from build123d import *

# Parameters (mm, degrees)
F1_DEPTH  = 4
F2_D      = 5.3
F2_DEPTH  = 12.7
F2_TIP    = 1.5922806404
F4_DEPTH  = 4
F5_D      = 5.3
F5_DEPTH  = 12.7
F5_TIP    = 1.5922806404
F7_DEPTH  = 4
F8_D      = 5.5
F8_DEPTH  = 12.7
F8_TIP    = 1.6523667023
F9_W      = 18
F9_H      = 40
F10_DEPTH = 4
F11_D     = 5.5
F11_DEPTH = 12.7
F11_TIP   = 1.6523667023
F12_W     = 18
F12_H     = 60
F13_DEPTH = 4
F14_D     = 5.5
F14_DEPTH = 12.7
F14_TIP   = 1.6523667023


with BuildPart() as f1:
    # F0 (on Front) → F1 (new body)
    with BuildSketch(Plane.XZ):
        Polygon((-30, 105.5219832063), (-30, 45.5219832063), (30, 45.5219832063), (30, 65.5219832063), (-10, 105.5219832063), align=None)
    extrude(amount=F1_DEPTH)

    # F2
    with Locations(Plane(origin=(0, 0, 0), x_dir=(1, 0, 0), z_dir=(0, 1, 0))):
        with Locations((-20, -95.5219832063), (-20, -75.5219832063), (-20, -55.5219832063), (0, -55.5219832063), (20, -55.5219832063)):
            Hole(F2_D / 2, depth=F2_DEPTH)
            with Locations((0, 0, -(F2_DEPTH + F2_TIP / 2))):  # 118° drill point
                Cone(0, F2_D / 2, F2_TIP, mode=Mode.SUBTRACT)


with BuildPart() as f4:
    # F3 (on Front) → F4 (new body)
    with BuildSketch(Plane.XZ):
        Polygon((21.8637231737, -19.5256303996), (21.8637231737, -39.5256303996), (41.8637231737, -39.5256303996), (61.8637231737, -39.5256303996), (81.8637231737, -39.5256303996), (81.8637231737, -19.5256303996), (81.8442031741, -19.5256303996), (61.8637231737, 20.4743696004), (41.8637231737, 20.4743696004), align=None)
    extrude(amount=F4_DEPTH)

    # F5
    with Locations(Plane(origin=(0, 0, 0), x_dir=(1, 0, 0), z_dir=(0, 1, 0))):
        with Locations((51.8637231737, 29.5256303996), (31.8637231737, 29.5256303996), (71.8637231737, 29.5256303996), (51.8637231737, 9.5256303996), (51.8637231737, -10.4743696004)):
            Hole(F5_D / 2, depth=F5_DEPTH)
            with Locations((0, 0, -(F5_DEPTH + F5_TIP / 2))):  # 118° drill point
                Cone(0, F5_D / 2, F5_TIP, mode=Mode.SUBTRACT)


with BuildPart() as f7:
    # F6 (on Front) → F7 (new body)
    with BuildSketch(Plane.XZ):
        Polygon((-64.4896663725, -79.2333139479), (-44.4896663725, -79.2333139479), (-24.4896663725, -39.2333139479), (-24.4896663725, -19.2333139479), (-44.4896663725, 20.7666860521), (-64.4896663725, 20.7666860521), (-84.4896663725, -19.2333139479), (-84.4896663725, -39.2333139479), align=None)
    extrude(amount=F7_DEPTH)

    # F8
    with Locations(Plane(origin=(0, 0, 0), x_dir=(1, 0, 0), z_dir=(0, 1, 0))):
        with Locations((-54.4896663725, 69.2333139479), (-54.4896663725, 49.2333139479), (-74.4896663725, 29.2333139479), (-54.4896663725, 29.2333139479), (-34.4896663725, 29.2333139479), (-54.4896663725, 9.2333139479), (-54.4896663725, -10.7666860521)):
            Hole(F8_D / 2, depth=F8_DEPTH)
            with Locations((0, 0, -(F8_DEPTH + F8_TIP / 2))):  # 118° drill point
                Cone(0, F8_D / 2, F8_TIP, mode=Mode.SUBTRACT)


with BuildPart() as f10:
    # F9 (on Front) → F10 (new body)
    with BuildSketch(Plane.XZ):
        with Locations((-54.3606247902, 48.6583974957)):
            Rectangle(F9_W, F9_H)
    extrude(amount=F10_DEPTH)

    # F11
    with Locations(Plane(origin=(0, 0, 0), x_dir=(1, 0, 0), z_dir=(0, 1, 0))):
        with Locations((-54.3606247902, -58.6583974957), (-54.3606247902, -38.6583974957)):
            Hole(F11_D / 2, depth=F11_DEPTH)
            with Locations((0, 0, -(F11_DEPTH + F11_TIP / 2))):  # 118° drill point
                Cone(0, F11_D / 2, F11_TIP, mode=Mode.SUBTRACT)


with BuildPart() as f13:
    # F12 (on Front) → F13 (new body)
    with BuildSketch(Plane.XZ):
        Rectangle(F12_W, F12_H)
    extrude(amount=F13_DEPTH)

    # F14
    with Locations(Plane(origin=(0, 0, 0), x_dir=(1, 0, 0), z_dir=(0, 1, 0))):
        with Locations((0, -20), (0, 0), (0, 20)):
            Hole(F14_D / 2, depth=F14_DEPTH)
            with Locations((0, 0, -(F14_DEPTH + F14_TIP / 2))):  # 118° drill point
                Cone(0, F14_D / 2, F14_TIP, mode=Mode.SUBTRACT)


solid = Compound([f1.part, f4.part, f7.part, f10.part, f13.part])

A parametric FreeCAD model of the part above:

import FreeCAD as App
import Part
import Sketcher

doc = App.newDocument("Part")
body = doc.addObject("PartDesign::Body", "Body")

# Sketch on XZ plane
sketch1 = body.newObject("Sketcher::SketchObject", "Sketch")
sketch1.AttachmentSupport = (doc.getObject("XZ_Plane"), [""])
sketch1.MapMode = "FlatFace"
sketch1.addGeometry(Part.LineSegment(App.Vector(-30, 106, 0), App.Vector(-30, 46, 0)), False)
sketch1.addGeometry(Part.LineSegment(App.Vector(-30, 46, 0), App.Vector(30, 46, 0)), False)
sketch1.addGeometry(Part.LineSegment(App.Vector(30, 46, 0), App.Vector(30, 66, 0)), False)
sketch1.addGeometry(Part.LineSegment(App.Vector(30, 66, 0), App.Vector(-10, 106, 0)), False)
sketch1.addGeometry(Part.LineSegment(App.Vector(-10, 106, 0), App.Vector(-30, 106, 0)), False)
sketch1.addConstraint(Sketcher.Constraint("Coincident", 0, 2, 1, 1))
sketch1.addConstraint(Sketcher.Constraint("Coincident", 1, 2, 2, 1))
sketch1.addConstraint(Sketcher.Constraint("Coincident", 2, 2, 3, 1))
sketch1.addConstraint(Sketcher.Constraint("Coincident", 3, 2, 4, 1))
sketch1.addConstraint(Sketcher.Constraint("Coincident", 4, 2, 0, 1))
sketch1.addConstraint(Sketcher.Constraint("Vertical", 0))
sketch1.addConstraint(Sketcher.Constraint("Horizontal", 1))
sketch1.addConstraint(Sketcher.Constraint("Vertical", 2))
sketch1.addConstraint(Sketcher.Constraint("Horizontal", 4))
sketch1.addConstraint(Sketcher.Constraint("Equal", 1, 0))
sketch1.addConstraint(Sketcher.Constraint("Equal", 4, 2))
sketch1.addConstraint(Sketcher.Constraint("DistanceX", 1, 1, 1, 2, 60.0))
sketch1.addConstraint(Sketcher.Constraint("DistanceX", 4, 2, 4, 1, 20.0))
sketch1.addConstraint(Sketcher.Constraint("DistanceX", 0, 2, -1, 1, 30.0))
sketch1.addConstraint(Sketcher.Constraint("DistanceY", -1, 1, 0, 2, 45.521983))
pad1 = body.newObject("PartDesign::Pad", "Pad")
pad1.Profile = sketch1
pad1.Length = 4

# Sketch on XZ plane
sketch2 = body.newObject("Sketcher::SketchObject", "Sketch001")
sketch2.AttachmentSupport = (doc.getObject("XZ_Plane"), [""])
sketch2.MapMode = "FlatFace"
sketch2.addGeometry(Part.Circle(App.Vector(-20, 95.5, 0), App.Vector(0, 0, 1), 2.6), False)
sketch2.addGeometry(Part.Circle(App.Vector(-20, 75.5, 0), App.Vector(0, 0, 1), 2.6), False)
sketch2.addGeometry(Part.Circle(App.Vector(-20, 55.5, 0), App.Vector(0, 0, 1), 2.6), False)
sketch2.addGeometry(Part.Circle(App.Vector(0, 55.5, 0), App.Vector(0, 0, 1), 2.6), False)
sketch2.addGeometry(Part.Circle(App.Vector(20, 55.5, 0), App.Vector(0, 0, 1), 2.6), False)
sketch2.addConstraint(Sketcher.Constraint("Equal", 0, 1))
sketch2.addConstraint(Sketcher.Constraint("Equal", 1, 2))
sketch2.addConstraint(Sketcher.Constraint("Equal", 2, 3))
sketch2.addConstraint(Sketcher.Constraint("Equal", 3, 4))
sketch2.addConstraint(Sketcher.Constraint("Symmetric", 2, 3, 4, 3, -2))
sketch2.addConstraint(Sketcher.Constraint("PointOnObject", 3, 3, -2))
sketch2.addConstraint(Sketcher.Constraint("Horizontal", 2, 3, 3, 3))
sketch2.addConstraint(Sketcher.Constraint("Vertical", 0, 3, 1, 3))
sketch2.addConstraint(Sketcher.Constraint("Vertical", 1, 3, 2, 3))
sketch2.addConstraint(Sketcher.Constraint("Diameter", 0, 5.3))
sketch2.addConstraint(Sketcher.Constraint("DistanceX", 0, 3, -1, 1, 20.0))
sketch2.addConstraint(Sketcher.Constraint("DistanceY", 1, 3, 0, 3, 20.0))
sketch2.addConstraint(Sketcher.Constraint("DistanceY", 2, 3, 1, 3, 20.0))
sketch2.addConstraint(Sketcher.Constraint("DistanceY", -1, 1, 0, 3, 95.521983))
doc.recompute()
hole = body.newObject("PartDesign::Hole", "Hole")
hole.Profile = sketch2
hole.ThreadType = "None"
hole.Diameter = 5.3
hole.DepthType = "Dimension"
hole.Depth = 12.7
hole.DrillPoint = "Angled"
hole.DrillPointAngle = 118
hole.Reversed = True
body2 = doc.addObject("PartDesign::Body", "Body001")

# Sketch on XZ plane
sketch3 = body2.newObject("Sketcher::SketchObject", "Sketch002")
sketch3.AttachmentSupport = (doc.getObject("XZ_Plane001"), [""])
sketch3.MapMode = "FlatFace"
sketch3.addGeometry(Part.LineSegment(App.Vector(21.864, -19.526, 0), App.Vector(21.864, -39.526, 0)), False)
sketch3.addGeometry(Part.LineSegment(App.Vector(21.864, -39.526, 0), App.Vector(81.864, -39.526, 0)), False)
sketch3.addGeometry(Part.LineSegment(App.Vector(81.864, -39.526, 0), App.Vector(81.864, -19.526, 0)), False)
sketch3.addGeometry(Part.LineSegment(App.Vector(81.864, -19.526, 0), App.Vector(81.844, -19.526, 0)), False)
sketch3.addGeometry(Part.LineSegment(App.Vector(81.844, -19.526, 0), App.Vector(61.864, 20.474, 0)), False)
sketch3.addGeometry(Part.LineSegment(App.Vector(61.864, 20.474, 0), App.Vector(41.864, 20.474, 0)), False)
sketch3.addGeometry(Part.LineSegment(App.Vector(41.864, 20.474, 0), App.Vector(21.864, -19.526, 0)), False)
sketch3.addConstraint(Sketcher.Constraint("Coincident", 0, 2, 1, 1))
sketch3.addConstraint(Sketcher.Constraint("Coincident", 1, 2, 2, 1))
sketch3.addConstraint(Sketcher.Constraint("Coincident", 2, 2, 3, 1))
sketch3.addConstraint(Sketcher.Constraint("Coincident", 3, 2, 4, 1))
sketch3.addConstraint(Sketcher.Constraint("Coincident", 4, 2, 5, 1))
sketch3.addConstraint(Sketcher.Constraint("Coincident", 5, 2, 6, 1))
sketch3.addConstraint(Sketcher.Constraint("Coincident", 6, 2, 0, 1))
sketch3.addConstraint(Sketcher.Constraint("Vertical", 0))
sketch3.addConstraint(Sketcher.Constraint("Horizontal", 1))
sketch3.addConstraint(Sketcher.Constraint("Vertical", 2))
sketch3.addConstraint(Sketcher.Constraint("Horizontal", 3))
sketch3.addConstraint(Sketcher.Constraint("Horizontal", 5))
sketch3.addConstraint(Sketcher.Constraint("Horizontal", 3, 2, 6, 2))
sketch3.addConstraint(Sketcher.Constraint("Equal", 5, 0))
sketch3.addConstraint(Sketcher.Constraint("DistanceX", 1, 1, 1, 2, 60.0))
sketch3.addConstraint(Sketcher.Constraint("DistanceX", 5, 2, 5, 1, 20.0))
sketch3.addConstraint(Sketcher.Constraint("DistanceY", 3, 2, 4, 2, 40.0))
sketch3.addConstraint(Sketcher.Constraint("DistanceX", 4, 2, 2, 2, 20.0))
sketch3.addConstraint(Sketcher.Constraint("DistanceX", 3, 2, 3, 1, 0.01952))
sketch3.addConstraint(Sketcher.Constraint("DistanceY", 0, 2, -1, 1, 39.52563))
sketch3.addConstraint(Sketcher.Constraint("DistanceX", -1, 1, 0, 2, 21.863723))
pad2 = body2.newObject("PartDesign::Pad", "Pad001")
pad2.Profile = sketch3
pad2.Length = 4

# Sketch on XZ plane
sketch4 = body2.newObject("Sketcher::SketchObject", "Sketch003")
sketch4.AttachmentSupport = (doc.getObject("XZ_Plane001"), [""])
sketch4.MapMode = "FlatFace"
sketch4.addGeometry(Part.Circle(App.Vector(51.9, -29.5, 0), App.Vector(0, 0, 1), 2.6), False)
sketch4.addGeometry(Part.Circle(App.Vector(31.9, -29.5, 0), App.Vector(0, 0, 1), 2.6), False)
sketch4.addGeometry(Part.Circle(App.Vector(71.9, -29.5, 0), App.Vector(0, 0, 1), 2.6), False)
sketch4.addGeometry(Part.Circle(App.Vector(51.9, -9.5, 0), App.Vector(0, 0, 1), 2.6), False)
sketch4.addGeometry(Part.Circle(App.Vector(51.9, 10.5, 0), App.Vector(0, 0, 1), 2.6), False)
sketch4.addConstraint(Sketcher.Constraint("Equal", 0, 1))
sketch4.addConstraint(Sketcher.Constraint("Equal", 1, 2))
sketch4.addConstraint(Sketcher.Constraint("Equal", 2, 3))
sketch4.addConstraint(Sketcher.Constraint("Equal", 3, 4))
sketch4.addConstraint(Sketcher.Constraint("Horizontal", 0, 3, 1, 3))
sketch4.addConstraint(Sketcher.Constraint("Horizontal", 1, 3, 2, 3))
sketch4.addConstraint(Sketcher.Constraint("Vertical", 0, 3, 3, 3))
sketch4.addConstraint(Sketcher.Constraint("Vertical", 3, 3, 4, 3))
sketch4.addConstraint(Sketcher.Constraint("Diameter", 0, 5.3))
sketch4.addConstraint(Sketcher.Constraint("DistanceX", 1, 3, 0, 3, 20.0))
sketch4.addConstraint(Sketcher.Constraint("DistanceX", 0, 3, 2, 3, 20.0))
sketch4.addConstraint(Sketcher.Constraint("DistanceY", 0, 3, 3, 3, 20.0))
sketch4.addConstraint(Sketcher.Constraint("DistanceY", 3, 3, 4, 3, 20.0))
sketch4.addConstraint(Sketcher.Constraint("DistanceY", 0, 3, -1, 1, 29.52563))
sketch4.addConstraint(Sketcher.Constraint("DistanceX", -1, 1, 0, 3, 51.863723))
doc.recompute()
hole2 = body2.newObject("PartDesign::Hole", "Hole001")
hole2.Profile = sketch4
hole2.ThreadType = "None"
hole2.Diameter = 5.3
hole2.DepthType = "Dimension"
hole2.Depth = 12.7
hole2.DrillPoint = "Angled"
hole2.DrillPointAngle = 118
hole2.Reversed = True
body3 = doc.addObject("PartDesign::Body", "Body002")

# Sketch on XZ plane
sketch5 = body3.newObject("Sketcher::SketchObject", "Sketch004")
sketch5.AttachmentSupport = (doc.getObject("XZ_Plane002"), [""])
sketch5.MapMode = "FlatFace"
sketch5.addGeometry(Part.LineSegment(App.Vector(-64, -79, 0), App.Vector(-44, -79, 0)), False)
sketch5.addGeometry(Part.LineSegment(App.Vector(-44, -79, 0), App.Vector(-24, -39, 0)), False)
sketch5.addGeometry(Part.LineSegment(App.Vector(-24, -39, 0), App.Vector(-24, -19, 0)), False)
sketch5.addGeometry(Part.LineSegment(App.Vector(-24, -19, 0), App.Vector(-44, 21, 0)), False)
sketch5.addGeometry(Part.LineSegment(App.Vector(-44, 21, 0), App.Vector(-64, 21, 0)), False)
sketch5.addGeometry(Part.LineSegment(App.Vector(-64, 21, 0), App.Vector(-84, -19, 0)), False)
sketch5.addGeometry(Part.LineSegment(App.Vector(-84, -19, 0), App.Vector(-84, -39, 0)), False)
sketch5.addGeometry(Part.LineSegment(App.Vector(-84, -39, 0), App.Vector(-64, -79, 0)), False)
sketch5.addConstraint(Sketcher.Constraint("Coincident", 0, 2, 1, 1))
sketch5.addConstraint(Sketcher.Constraint("Coincident", 1, 2, 2, 1))
sketch5.addConstraint(Sketcher.Constraint("Coincident", 2, 2, 3, 1))
sketch5.addConstraint(Sketcher.Constraint("Coincident", 3, 2, 4, 1))
sketch5.addConstraint(Sketcher.Constraint("Coincident", 4, 2, 5, 1))
sketch5.addConstraint(Sketcher.Constraint("Coincident", 5, 2, 6, 1))
sketch5.addConstraint(Sketcher.Constraint("Coincident", 6, 2, 7, 1))
sketch5.addConstraint(Sketcher.Constraint("Coincident", 7, 2, 0, 1))
sketch5.addConstraint(Sketcher.Constraint("Horizontal", 0))
sketch5.addConstraint(Sketcher.Constraint("Vertical", 2))
sketch5.addConstraint(Sketcher.Constraint("Horizontal", 4))
sketch5.addConstraint(Sketcher.Constraint("Vertical", 6))
sketch5.addConstraint(Sketcher.Constraint("Parallel", 1, 5))
sketch5.addConstraint(Sketcher.Constraint("Parallel", 3, 7))
sketch5.addConstraint(Sketcher.Constraint("Horizontal", 2, 2, 5, 2))
sketch5.addConstraint(Sketcher.Constraint("Horizontal", 1, 2, 6, 2))
sketch5.addConstraint(Sketcher.Constraint("Vertical", 0, 2, 3, 2))
sketch5.addConstraint(Sketcher.Constraint("Vertical", 4, 2, 7, 2))
sketch5.addConstraint(Sketcher.Constraint("Equal", 4, 2))
sketch5.addConstraint(Sketcher.Constraint("DistanceX", 0, 1, 0, 2, 20.0))
sketch5.addConstraint(Sketcher.Constraint("DistanceX", 0, 2, 1, 2, 20.0))
sketch5.addConstraint(Sketcher.Constraint("DistanceY", 0, 2, 1, 2, 40.0))
sketch5.addConstraint(Sketcher.Constraint("DistanceX", 0, 2, -1, 1, 44.489666))
sketch5.addConstraint(Sketcher.Constraint("DistanceY", 0, 2, -1, 1, 79.233314))
pad3 = body3.newObject("PartDesign::Pad", "Pad002")
pad3.Profile = sketch5
pad3.Length = 4

# Sketch on XZ plane
sketch6 = body3.newObject("Sketcher::SketchObject", "Sketch005")
sketch6.AttachmentSupport = (doc.getObject("XZ_Plane002"), [""])
sketch6.MapMode = "FlatFace"
sketch6.addGeometry(Part.Circle(App.Vector(-54.5, -69.2, 0), App.Vector(0, 0, 1), 2.8), False)
sketch6.addGeometry(Part.Circle(App.Vector(-54.5, -49.2, 0), App.Vector(0, 0, 1), 2.8), False)
sketch6.addGeometry(Part.Circle(App.Vector(-74.5, -29.2, 0), App.Vector(0, 0, 1), 2.8), False)
sketch6.addGeometry(Part.Circle(App.Vector(-54.5, -29.2, 0), App.Vector(0, 0, 1), 2.8), False)
sketch6.addGeometry(Part.Circle(App.Vector(-34.5, -29.2, 0), App.Vector(0, 0, 1), 2.8), False)
sketch6.addGeometry(Part.Circle(App.Vector(-54.5, -9.2, 0), App.Vector(0, 0, 1), 2.8), False)
sketch6.addGeometry(Part.Circle(App.Vector(-54.5, 10.8, 0), App.Vector(0, 0, 1), 2.8), False)
sketch6.addConstraint(Sketcher.Constraint("Equal", 0, 1))
sketch6.addConstraint(Sketcher.Constraint("Equal", 1, 2))
sketch6.addConstraint(Sketcher.Constraint("Equal", 2, 3))
sketch6.addConstraint(Sketcher.Constraint("Equal", 3, 4))
sketch6.addConstraint(Sketcher.Constraint("Equal", 4, 5))
sketch6.addConstraint(Sketcher.Constraint("Equal", 5, 6))
sketch6.addConstraint(Sketcher.Constraint("Horizontal", 2, 3, 3, 3))
sketch6.addConstraint(Sketcher.Constraint("Horizontal", 3, 3, 4, 3))
sketch6.addConstraint(Sketcher.Constraint("Vertical", 0, 3, 1, 3))
sketch6.addConstraint(Sketcher.Constraint("Vertical", 1, 3, 3, 3))
sketch6.addConstraint(Sketcher.Constraint("Vertical", 3, 3, 5, 3))
sketch6.addConstraint(Sketcher.Constraint("Vertical", 5, 3, 6, 3))
sketch6.addConstraint(Sketcher.Constraint("Diameter", 0, 5.5))
sketch6.addConstraint(Sketcher.Constraint("DistanceY", 0, 3, 1, 3, 20.0))
sketch6.addConstraint(Sketcher.Constraint("DistanceX", 2, 3, 1, 3, 20.0))
sketch6.addConstraint(Sketcher.Constraint("DistanceY", 1, 3, 2, 3, 20.0))
sketch6.addConstraint(Sketcher.Constraint("DistanceX", 3, 3, 4, 3, 20.0))
sketch6.addConstraint(Sketcher.Constraint("DistanceY", 3, 3, 5, 3, 20.0))
sketch6.addConstraint(Sketcher.Constraint("DistanceY", 5, 3, 6, 3, 20.0))
sketch6.addConstraint(Sketcher.Constraint("DistanceX", 0, 3, -1, 1, 54.489666))
sketch6.addConstraint(Sketcher.Constraint("DistanceY", 0, 3, -1, 1, 69.233314))
doc.recompute()
hole3 = body3.newObject("PartDesign::Hole", "Hole002")
hole3.Profile = sketch6
hole3.ThreadType = "None"
hole3.Diameter = 5.5
hole3.DepthType = "Dimension"
hole3.Depth = 12.7
hole3.DrillPoint = "Angled"
hole3.DrillPointAngle = 118
hole3.Reversed = True
body4 = doc.addObject("PartDesign::Body", "Body003")

# Sketch on XZ plane
sketch7 = body4.newObject("Sketcher::SketchObject", "Sketch006")
sketch7.AttachmentSupport = (doc.getObject("XZ_Plane003"), [""])
sketch7.MapMode = "FlatFace"
sketch7.addGeometry(Part.LineSegment(App.Vector(-63, 69, 0), App.Vector(-63, 29, 0)), False)
sketch7.addGeometry(Part.LineSegment(App.Vector(-63, 29, 0), App.Vector(-45, 29, 0)), False)
sketch7.addGeometry(Part.LineSegment(App.Vector(-45, 29, 0), App.Vector(-45, 69, 0)), False)
sketch7.addGeometry(Part.LineSegment(App.Vector(-45, 69, 0), App.Vector(-63, 69, 0)), False)
sketch7.addConstraint(Sketcher.Constraint("Coincident", 0, 2, 1, 1))
sketch7.addConstraint(Sketcher.Constraint("Coincident", 1, 2, 2, 1))
sketch7.addConstraint(Sketcher.Constraint("Coincident", 2, 2, 3, 1))
sketch7.addConstraint(Sketcher.Constraint("Coincident", 3, 2, 0, 1))
sketch7.addConstraint(Sketcher.Constraint("Vertical", 0))
sketch7.addConstraint(Sketcher.Constraint("Horizontal", 1))
sketch7.addConstraint(Sketcher.Constraint("Vertical", 2))
sketch7.addConstraint(Sketcher.Constraint("Horizontal", 3))
sketch7.addConstraint(Sketcher.Constraint("DistanceX", 1, 1, 1, 2, 18.0))
sketch7.addConstraint(Sketcher.Constraint("DistanceY", 0, 2, 0, 1, 40.0))
sketch7.addConstraint(Sketcher.Constraint("DistanceX", 0, 2, -1, 1, 63.360625))
sketch7.addConstraint(Sketcher.Constraint("DistanceY", -1, 1, 0, 2, 28.658397))
pad4 = body4.newObject("PartDesign::Pad", "Pad003")
pad4.Profile = sketch7
pad4.Length = 4

# Sketch on XZ plane
sketch8 = body4.newObject("Sketcher::SketchObject", "Sketch007")
sketch8.AttachmentSupport = (doc.getObject("XZ_Plane003"), [""])
sketch8.MapMode = "FlatFace"
sketch8.addGeometry(Part.Circle(App.Vector(-54.4, 58.7, 0), App.Vector(0, 0, 1), 2.8), False)
sketch8.addGeometry(Part.Circle(App.Vector(-54.4, 38.7, 0), App.Vector(0, 0, 1), 2.8), False)
sketch8.addConstraint(Sketcher.Constraint("Equal", 0, 1))
sketch8.addConstraint(Sketcher.Constraint("Vertical", 0, 3, 1, 3))
sketch8.addConstraint(Sketcher.Constraint("Diameter", 0, 5.5))
sketch8.addConstraint(Sketcher.Constraint("DistanceY", 1, 3, 0, 3, 20.0))
sketch8.addConstraint(Sketcher.Constraint("DistanceX", 0, 3, -1, 1, 54.360625))
sketch8.addConstraint(Sketcher.Constraint("DistanceY", -1, 1, 0, 3, 58.658397))
doc.recompute()
hole4 = body4.newObject("PartDesign::Hole", "Hole003")
hole4.Profile = sketch8
hole4.ThreadType = "None"
hole4.Diameter = 5.5
hole4.DepthType = "Dimension"
hole4.Depth = 12.7
hole4.DrillPoint = "Angled"
hole4.DrillPointAngle = 118
hole4.Reversed = True
body5 = doc.addObject("PartDesign::Body", "Body004")

# Sketch on XZ plane
sketch9 = body5.newObject("Sketcher::SketchObject", "Sketch008")
sketch9.AttachmentSupport = (doc.getObject("XZ_Plane004"), [""])
sketch9.MapMode = "FlatFace"
sketch9.addGeometry(Part.LineSegment(App.Vector(-9, 30, 0), App.Vector(-9, -30, 0)), False)
sketch9.addGeometry(Part.LineSegment(App.Vector(-9, -30, 0), App.Vector(9, -30, 0)), False)
sketch9.addGeometry(Part.LineSegment(App.Vector(9, -30, 0), App.Vector(9, 30, 0)), False)
sketch9.addGeometry(Part.LineSegment(App.Vector(9, 30, 0), App.Vector(-9, 30, 0)), False)
sketch9.addConstraint(Sketcher.Constraint("Coincident", 0, 2, 1, 1))
sketch9.addConstraint(Sketcher.Constraint("Coincident", 1, 2, 2, 1))
sketch9.addConstraint(Sketcher.Constraint("Coincident", 2, 2, 3, 1))
sketch9.addConstraint(Sketcher.Constraint("Coincident", 3, 2, 0, 1))
sketch9.addConstraint(Sketcher.Constraint("Vertical", 0))
sketch9.addConstraint(Sketcher.Constraint("Horizontal", 1))
sketch9.addConstraint(Sketcher.Constraint("Vertical", 2))
sketch9.addConstraint(Sketcher.Constraint("Horizontal", 3))
sketch9.addConstraint(Sketcher.Constraint("Symmetric", 0, 2, 2, 2, -1, 1))
sketch9.addConstraint(Sketcher.Constraint("DistanceX", 1, 1, 1, 2, 18.0))
sketch9.addConstraint(Sketcher.Constraint("DistanceY", 0, 2, 0, 1, 60.0))
pad5 = body5.newObject("PartDesign::Pad", "Pad004")
pad5.Profile = sketch9
pad5.Length = 4

# Sketch on XZ plane
sketch10 = body5.newObject("Sketcher::SketchObject", "Sketch009")
sketch10.AttachmentSupport = (doc.getObject("XZ_Plane004"), [""])
sketch10.MapMode = "FlatFace"
sketch10.addGeometry(Part.Circle(App.Vector(0, 20, 0), App.Vector(0, 0, 1), 2.8), False)
sketch10.addGeometry(Part.Circle(App.Vector(0, 0, 0), App.Vector(0, 0, 1), 2.8), False)
sketch10.addGeometry(Part.Circle(App.Vector(0, -20, 0), App.Vector(0, 0, 1), 2.8), False)
sketch10.addConstraint(Sketcher.Constraint("Coincident", 1, 3, -1, 1))
sketch10.addConstraint(Sketcher.Constraint("Equal", 0, 1))
sketch10.addConstraint(Sketcher.Constraint("Equal", 1, 2))
sketch10.addConstraint(Sketcher.Constraint("Symmetric", 0, 3, 2, 3, -1, 1))
sketch10.addConstraint(Sketcher.Constraint("PointOnObject", 0, 3, -2))
sketch10.addConstraint(Sketcher.Constraint("Diameter", 0, 5.5))
sketch10.addConstraint(Sketcher.Constraint("DistanceY", -1, 1, 0, 3, 20.0))
doc.recompute()
hole5 = body5.newObject("PartDesign::Hole", "Hole004")
hole5.Profile = sketch10
hole5.ThreadType = "None"
hole5.Diameter = 5.5
hole5.DepthType = "Dimension"
hole5.Depth = 12.7
hole5.DrillPoint = "Angled"
hole5.DrillPointAngle = 118
hole5.Reversed = True

doc.recompute()
